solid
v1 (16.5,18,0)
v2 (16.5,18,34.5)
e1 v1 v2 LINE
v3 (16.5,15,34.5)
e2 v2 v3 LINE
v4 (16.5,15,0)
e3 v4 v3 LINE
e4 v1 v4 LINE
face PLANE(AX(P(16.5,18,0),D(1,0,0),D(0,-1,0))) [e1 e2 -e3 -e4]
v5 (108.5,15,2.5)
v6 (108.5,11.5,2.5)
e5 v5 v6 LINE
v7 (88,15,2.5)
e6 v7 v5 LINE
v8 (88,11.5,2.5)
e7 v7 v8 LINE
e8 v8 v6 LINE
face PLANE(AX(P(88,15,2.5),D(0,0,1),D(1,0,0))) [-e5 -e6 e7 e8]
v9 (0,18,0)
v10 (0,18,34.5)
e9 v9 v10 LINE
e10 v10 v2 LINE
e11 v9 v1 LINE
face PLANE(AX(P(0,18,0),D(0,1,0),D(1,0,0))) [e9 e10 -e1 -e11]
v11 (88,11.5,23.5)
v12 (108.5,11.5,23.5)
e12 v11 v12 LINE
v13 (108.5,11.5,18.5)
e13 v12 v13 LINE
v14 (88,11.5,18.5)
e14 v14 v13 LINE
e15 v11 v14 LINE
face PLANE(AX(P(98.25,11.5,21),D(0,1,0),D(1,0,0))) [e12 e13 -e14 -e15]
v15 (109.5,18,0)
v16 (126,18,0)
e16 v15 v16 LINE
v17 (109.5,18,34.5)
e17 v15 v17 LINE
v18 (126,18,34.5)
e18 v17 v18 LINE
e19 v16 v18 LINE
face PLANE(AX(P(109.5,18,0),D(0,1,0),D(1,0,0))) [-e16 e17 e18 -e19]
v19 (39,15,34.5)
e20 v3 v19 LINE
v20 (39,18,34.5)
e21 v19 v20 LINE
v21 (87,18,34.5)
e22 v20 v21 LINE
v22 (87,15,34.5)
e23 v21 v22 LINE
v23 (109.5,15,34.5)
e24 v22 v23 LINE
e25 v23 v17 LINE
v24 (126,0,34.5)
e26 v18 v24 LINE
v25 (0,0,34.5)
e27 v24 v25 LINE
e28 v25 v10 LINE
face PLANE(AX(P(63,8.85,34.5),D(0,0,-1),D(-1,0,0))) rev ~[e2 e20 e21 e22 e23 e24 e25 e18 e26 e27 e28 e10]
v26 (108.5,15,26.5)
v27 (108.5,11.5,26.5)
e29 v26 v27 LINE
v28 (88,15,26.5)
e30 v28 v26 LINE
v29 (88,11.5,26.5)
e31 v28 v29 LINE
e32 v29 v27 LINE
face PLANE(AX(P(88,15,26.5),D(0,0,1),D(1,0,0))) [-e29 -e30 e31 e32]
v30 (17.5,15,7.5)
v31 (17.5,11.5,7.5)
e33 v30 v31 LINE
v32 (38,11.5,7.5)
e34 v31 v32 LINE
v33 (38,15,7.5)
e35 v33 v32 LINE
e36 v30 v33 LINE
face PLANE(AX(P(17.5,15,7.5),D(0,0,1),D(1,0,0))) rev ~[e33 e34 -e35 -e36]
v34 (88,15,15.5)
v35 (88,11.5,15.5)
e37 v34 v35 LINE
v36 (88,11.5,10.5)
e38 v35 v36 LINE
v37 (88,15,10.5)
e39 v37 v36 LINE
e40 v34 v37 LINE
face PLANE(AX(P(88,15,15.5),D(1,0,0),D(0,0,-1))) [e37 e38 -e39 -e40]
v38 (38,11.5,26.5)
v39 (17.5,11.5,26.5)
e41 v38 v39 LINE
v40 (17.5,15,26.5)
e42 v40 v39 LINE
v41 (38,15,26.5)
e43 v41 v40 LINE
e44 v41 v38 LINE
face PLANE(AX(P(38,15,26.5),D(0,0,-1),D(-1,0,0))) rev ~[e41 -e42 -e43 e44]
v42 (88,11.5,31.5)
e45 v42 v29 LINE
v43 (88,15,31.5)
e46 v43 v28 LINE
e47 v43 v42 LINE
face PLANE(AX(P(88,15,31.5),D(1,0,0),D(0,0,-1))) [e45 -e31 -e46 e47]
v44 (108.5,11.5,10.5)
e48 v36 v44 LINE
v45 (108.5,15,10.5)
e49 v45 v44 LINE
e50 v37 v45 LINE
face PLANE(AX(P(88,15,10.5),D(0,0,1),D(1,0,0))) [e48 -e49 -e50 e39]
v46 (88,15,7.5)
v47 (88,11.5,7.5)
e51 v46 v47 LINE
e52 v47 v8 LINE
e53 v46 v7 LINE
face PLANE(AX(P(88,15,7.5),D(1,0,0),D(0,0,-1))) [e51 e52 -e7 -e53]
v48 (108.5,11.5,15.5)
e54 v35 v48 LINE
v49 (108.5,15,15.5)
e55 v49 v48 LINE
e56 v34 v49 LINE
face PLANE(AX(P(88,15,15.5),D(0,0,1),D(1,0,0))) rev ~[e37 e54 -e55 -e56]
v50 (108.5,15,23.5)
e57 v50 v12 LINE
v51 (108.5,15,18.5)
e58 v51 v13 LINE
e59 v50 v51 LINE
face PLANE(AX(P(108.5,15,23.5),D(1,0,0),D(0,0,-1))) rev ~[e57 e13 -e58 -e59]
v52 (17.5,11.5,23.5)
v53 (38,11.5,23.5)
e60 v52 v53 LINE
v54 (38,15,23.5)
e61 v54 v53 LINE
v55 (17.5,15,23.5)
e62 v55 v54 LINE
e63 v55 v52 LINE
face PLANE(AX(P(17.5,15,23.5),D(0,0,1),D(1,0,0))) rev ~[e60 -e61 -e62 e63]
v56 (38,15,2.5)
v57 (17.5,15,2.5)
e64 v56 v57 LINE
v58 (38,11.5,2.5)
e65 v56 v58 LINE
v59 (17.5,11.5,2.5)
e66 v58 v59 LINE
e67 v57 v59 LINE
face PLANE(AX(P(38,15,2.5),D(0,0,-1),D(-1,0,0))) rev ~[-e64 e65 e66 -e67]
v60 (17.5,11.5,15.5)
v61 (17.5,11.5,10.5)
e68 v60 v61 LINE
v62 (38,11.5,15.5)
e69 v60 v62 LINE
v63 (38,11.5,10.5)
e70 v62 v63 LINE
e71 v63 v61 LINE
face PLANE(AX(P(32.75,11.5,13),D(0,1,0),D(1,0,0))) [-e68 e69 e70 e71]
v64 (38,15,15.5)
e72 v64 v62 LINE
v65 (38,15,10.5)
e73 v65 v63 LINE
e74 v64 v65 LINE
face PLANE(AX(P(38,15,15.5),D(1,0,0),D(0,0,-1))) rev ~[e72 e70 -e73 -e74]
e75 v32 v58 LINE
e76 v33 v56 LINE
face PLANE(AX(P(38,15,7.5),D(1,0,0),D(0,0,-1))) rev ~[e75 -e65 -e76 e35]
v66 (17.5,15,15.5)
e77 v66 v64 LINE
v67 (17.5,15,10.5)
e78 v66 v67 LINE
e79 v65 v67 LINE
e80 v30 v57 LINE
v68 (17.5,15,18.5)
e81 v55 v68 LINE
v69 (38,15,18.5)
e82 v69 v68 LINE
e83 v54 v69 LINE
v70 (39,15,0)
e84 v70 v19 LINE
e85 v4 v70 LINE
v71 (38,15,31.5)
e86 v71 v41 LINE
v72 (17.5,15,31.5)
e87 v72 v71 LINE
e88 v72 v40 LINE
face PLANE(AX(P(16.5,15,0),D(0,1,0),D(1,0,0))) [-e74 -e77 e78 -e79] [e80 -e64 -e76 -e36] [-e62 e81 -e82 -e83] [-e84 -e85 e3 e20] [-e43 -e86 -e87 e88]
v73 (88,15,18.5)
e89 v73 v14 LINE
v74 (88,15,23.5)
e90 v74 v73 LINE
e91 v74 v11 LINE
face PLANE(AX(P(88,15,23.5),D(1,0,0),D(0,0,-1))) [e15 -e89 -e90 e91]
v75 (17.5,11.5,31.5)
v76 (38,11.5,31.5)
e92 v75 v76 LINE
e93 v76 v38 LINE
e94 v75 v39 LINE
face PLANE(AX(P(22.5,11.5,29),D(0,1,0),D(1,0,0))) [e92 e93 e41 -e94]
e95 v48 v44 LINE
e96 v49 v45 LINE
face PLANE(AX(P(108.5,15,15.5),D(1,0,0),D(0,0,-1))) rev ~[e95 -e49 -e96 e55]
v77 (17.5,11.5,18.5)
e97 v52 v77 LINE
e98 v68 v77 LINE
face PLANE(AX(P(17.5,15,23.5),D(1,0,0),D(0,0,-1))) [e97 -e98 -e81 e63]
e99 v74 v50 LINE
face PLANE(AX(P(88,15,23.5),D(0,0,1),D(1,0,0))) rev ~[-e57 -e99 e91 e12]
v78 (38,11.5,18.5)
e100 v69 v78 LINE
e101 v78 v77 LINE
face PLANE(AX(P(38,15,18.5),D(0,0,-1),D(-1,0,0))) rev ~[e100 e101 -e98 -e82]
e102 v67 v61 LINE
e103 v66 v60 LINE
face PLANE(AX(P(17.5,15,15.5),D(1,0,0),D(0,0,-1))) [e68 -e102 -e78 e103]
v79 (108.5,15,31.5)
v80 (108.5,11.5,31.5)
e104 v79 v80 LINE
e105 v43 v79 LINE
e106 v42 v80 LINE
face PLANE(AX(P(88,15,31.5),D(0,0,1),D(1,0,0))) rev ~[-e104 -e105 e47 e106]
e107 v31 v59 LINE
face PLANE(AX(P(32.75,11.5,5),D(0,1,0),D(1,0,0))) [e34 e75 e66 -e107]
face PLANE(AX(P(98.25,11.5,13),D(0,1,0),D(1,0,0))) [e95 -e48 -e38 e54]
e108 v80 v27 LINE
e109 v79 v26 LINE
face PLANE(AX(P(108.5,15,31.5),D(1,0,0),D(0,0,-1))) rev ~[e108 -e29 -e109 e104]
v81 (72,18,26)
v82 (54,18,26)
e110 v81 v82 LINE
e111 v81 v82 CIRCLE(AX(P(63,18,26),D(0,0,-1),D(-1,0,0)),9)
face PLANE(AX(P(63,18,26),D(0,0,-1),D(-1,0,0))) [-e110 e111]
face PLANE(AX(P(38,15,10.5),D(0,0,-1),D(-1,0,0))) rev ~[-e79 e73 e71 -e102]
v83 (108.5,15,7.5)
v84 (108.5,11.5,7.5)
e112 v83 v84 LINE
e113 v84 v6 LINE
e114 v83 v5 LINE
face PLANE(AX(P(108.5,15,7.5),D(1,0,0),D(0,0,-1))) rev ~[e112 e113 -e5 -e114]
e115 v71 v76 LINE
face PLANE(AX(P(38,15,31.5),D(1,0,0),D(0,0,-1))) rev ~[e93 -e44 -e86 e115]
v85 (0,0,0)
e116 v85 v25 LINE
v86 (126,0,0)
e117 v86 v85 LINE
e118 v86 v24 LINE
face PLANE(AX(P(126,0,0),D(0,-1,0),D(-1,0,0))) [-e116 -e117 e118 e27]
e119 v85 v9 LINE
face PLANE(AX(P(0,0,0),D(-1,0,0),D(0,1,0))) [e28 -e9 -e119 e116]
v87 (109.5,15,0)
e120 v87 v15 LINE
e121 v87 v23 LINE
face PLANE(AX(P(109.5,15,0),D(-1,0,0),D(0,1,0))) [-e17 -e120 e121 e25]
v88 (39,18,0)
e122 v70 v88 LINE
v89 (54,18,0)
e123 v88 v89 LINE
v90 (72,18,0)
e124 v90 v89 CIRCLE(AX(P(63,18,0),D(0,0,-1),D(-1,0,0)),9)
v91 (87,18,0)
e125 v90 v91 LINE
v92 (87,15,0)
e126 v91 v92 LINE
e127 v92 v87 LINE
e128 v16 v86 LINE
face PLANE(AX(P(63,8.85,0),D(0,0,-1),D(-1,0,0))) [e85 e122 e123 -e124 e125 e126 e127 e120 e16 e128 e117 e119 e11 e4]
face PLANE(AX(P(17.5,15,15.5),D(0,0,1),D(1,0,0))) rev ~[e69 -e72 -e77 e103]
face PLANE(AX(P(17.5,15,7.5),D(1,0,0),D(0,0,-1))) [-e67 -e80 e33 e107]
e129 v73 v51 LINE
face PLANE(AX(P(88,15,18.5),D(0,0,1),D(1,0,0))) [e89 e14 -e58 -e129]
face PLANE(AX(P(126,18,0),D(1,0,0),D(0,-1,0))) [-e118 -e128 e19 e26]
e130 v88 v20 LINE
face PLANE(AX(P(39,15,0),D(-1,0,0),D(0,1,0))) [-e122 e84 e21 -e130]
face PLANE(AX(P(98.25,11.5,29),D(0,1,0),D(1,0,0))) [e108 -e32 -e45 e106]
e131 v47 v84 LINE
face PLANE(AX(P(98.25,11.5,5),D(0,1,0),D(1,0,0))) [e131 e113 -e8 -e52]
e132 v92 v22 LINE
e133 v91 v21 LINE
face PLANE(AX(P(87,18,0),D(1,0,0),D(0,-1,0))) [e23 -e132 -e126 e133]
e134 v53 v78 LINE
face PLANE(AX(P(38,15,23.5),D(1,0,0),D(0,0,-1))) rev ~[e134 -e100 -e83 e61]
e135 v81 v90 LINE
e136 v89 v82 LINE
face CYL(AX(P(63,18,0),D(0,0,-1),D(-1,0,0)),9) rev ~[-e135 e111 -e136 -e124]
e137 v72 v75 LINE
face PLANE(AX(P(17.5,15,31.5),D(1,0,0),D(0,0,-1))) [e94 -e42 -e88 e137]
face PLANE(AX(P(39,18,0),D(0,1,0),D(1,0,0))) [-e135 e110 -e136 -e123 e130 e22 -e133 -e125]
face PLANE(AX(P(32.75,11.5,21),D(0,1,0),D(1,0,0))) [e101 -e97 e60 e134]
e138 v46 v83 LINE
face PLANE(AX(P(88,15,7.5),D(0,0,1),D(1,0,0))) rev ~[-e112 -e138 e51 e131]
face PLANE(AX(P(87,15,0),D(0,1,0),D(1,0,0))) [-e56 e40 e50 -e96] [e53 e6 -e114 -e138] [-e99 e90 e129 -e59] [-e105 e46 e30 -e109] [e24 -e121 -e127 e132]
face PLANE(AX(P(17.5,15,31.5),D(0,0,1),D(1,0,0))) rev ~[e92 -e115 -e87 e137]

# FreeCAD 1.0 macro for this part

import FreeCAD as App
import Part
import Sketcher

V = App.Vector


def add_polygon(sketch, points):
    """Adds a closed chain of lines whose ends are joined by coincident constraints."""
    first, n = sketch.GeometryCount, len(points)
    for a, b in zip(points, points[1:] + points[:1]):
        sketch.addGeometry(Part.LineSegment(App.Vector(*a, 0), App.Vector(*b, 0)), False)
    for i in range(n):
        sketch.addConstraint(Sketcher.Constraint("Coincident", first + i, 2, first + (i + 1) % n, 1))

doc = App.newDocument("Part")
body = doc.addObject("PartDesign::Body", "Body")

sketch1 = doc.addObject("Sketcher::SketchObject", "Sketch")
body.addObject(sketch1)
sketch1.AttachmentSupport = (doc.XY_Plane, [""])
sketch1.MapMode = "FlatFace"
add_polygon(sketch1, [(0, 18), (0, 0), (126, 0), (126, 18), (109.5, 18), (109.5, 15), (87, 15), (87, 18), (39, 18), (39, 15), (16.5, 15), (16.5, 18)])
sketch1.addConstraint(Sketcher.Constraint("Vertical", 0))
sketch1.addConstraint(Sketcher.Constraint("Horizontal", 1))
sketch1.addConstraint(Sketcher.Constraint("Vertical", 2))
sketch1.addConstraint(Sketcher.Constraint("Horizontal", 3))
sketch1.addConstraint(Sketcher.Constraint("Vertical", 4))
sketch1.addConstraint(Sketcher.Constraint("Horizontal", 5))
sketch1.addConstraint(Sketcher.Constraint("Vertical", 6))
sketch1.addConstraint(Sketcher.Constraint("Horizontal", 7))
sketch1.addConstraint(Sketcher.Constraint("Vertical", 8))
sketch1.addConstraint(Sketcher.Constraint("Horizontal", 9))
sketch1.addConstraint(Sketcher.Constraint("Vertical", 10))
sketch1.addConstraint(Sketcher.Constraint("Horizontal", 11))
sketch1.addConstraint(Sketcher.Constraint("Coincident", 0, 2, -1, 1))
sketch1.addConstraint(Sketcher.Constraint("Horizontal", 3, 2, 6, 2))
sketch1.addConstraint(Sketcher.Constraint("Horizontal", 5, 2, 8, 2))
sketch1.addConstraint(Sketcher.Constraint("Horizontal", 7, 2, 10, 2))
sketch1.addConstraint(Sketcher.Constraint("Equal", 5, 9))
sketch1.addConstraint(Sketcher.Constraint("Equal", 3, 11))
sketch1.addConstraint(Sketcher.Constraint("DistanceX", 1, 1, 1, 2, 126.0))
sketch1.addConstraint(Sketcher.Constraint("DistanceX", 7, 2, 7, 1, 48.0))
sketch1.addConstraint(Sketcher.Constraint("DistanceY", 0, 2, 0, 1, 18.0))
sketch1.addConstraint(Sketcher.Constraint("DistanceY", 4, 2, 4, 1, 3.0))
sketch1.addConstraint(Sketcher.Constraint("DistanceX", 3, 2, 3, 1, 16.5))
pad1 = doc.addObject("PartDesign::Pad", "Pad")
body.addObject(pad1)
pad1.Profile = sketch1
pad1.Length = 34.5

sketch2 = doc.addObject("Sketcher::SketchObject", "Sketch001")
body.addObject(sketch2)
sketch2.AttachmentSupport = (doc.XY_Plane, [""])
sketch2.MapMode = "FlatFace"
sketch2.addGeometry(Part.Circle(V(63, 18, 0), V(0, 0, 1), 9), False)
sketch2.addConstraint(Sketcher.Constraint("Diameter", 0, 18.0))
sketch2.addConstraint(Sketcher.Constraint("DistanceX", -1, 1, 0, 3, 63.0))
sketch2.addConstraint(Sketcher.Constraint("DistanceY", -1, 1, 0, 3, 18.0))
pocket1 = doc.addObject("PartDesign::Pocket", "Pocket")
body.addObject(pocket1)
pocket1.Profile = sketch2
pocket1.Length = 26
pocket1.Reversed = True

sketch3 = doc.addObject("Sketcher::SketchObject", "Sketch002")
body.addObject(sketch3)
sketch3.AttachmentSupport = (doc.XZ_Plane, [""])
sketch3.MapMode = "FlatFace"
sketch3.AttachmentOffset = App.Placement(V(0, 0, -15), App.Rotation())
add_polygon(sketch3, [(18, 26), (18, 32), (38, 32), (38, 26)])
add_polygon(sketch3, [(38, 24), (38, 18), (18, 18), (18, 24)])
add_polygon(sketch3, [(38, 16), (38, 10), (18, 10), (18, 16)])
add_polygon(sketch3, [(38, 8), (38, 2), (18, 2), (18, 8)])
add_polygon(sketch3, [(88, 26), (88, 32), (108, 32), (108, 26)])
add_polygon(sketch3, [(88, 18), (88, 24), (108, 24), (108, 18)])
add_polygon(sketch3, [(88, 10), (88, 16), (108, 16), (108, 10)])
add_polygon(sketch3, [(88, 2), (88, 8), (108, 8), (108, 2)])
sketch3.addConstraint(Sketcher.Constraint("Vertical", 0))
sketch3.addConstraint(Sketcher.Constraint("Horizontal", 1))
sketch3.addConstraint(Sketcher.Constraint("Vertical", 2))
sketch3.addConstraint(Sketcher.Constraint("Horizontal", 3))
sketch3.addConstraint(Sketcher.Constraint("Vertical", 4))
sketch3.addConstraint(Sketcher.Constraint("Horizontal", 5))
sketch3.addConstraint(Sketcher.Constraint("Vertical", 6))
sketch3.addConstraint(Sketcher.Constraint("Horizontal", 7))
sketch3.addConstraint(Sketcher.Constraint("Vertical", 8))
sketch3.addConstraint(Sketcher.Constraint("Horizontal", 9))
sketch3.addConstraint(Sketcher.Constraint("Vertical", 10))
sketch3.addConstraint(Sketcher.Constraint("Horizontal", 11))
sketch3.addConstraint(Sketcher.Constraint("Vertical", 12))
sketch3.addConstraint(Sketcher.Constraint("Horizontal", 13))
sketch3.addConstraint(Sketcher.Constraint("Vertical", 14))
sketch3.addConstraint(Sketcher.Constraint("Horizontal", 15))
sketch3.addConstraint(Sketcher.Constraint("Vertical", 16))
sketch3.addConstraint(Sketcher.Constraint("Horizontal", 17))
sketch3.addConstraint(Sketcher.Constraint("Vertical", 18))
sketch3.addConstraint(Sketcher.Constraint("Horizontal", 19))
sketch3.addConstraint(Sketcher.Constraint("Vertical", 20))
sketch3.addConstraint(Sketcher.Constraint("Horizontal", 21))
sketch3.addConstraint(Sketcher.Constraint("Vertical", 22))
sketch3.addConstraint(Sketcher.Constraint("Horizontal", 23))
sketch3.addConstraint(Sketcher.Constraint("Vertical", 24))
sketch3.addConstraint(Sketcher.Constraint("Horizontal", 25))
sketch3.addConstraint(Sketcher.Constraint("Vertical", 26))
sketch3.addConstraint(Sketcher.Constraint("Horizontal", 27))
sketch3.addConstraint(Sketcher.Constraint("Vertical", 28))
sketch3.addConstraint(Sketcher.Constraint("Horizontal", 29))
sketch3.addConstraint(Sketcher.Constraint("Vertical", 30))
sketch3.addConstraint(Sketcher.Constraint("Horizontal", 31))
sketch3.addConstraint(Sketcher.Constraint("Horizontal", 1, 2, 16, 2))
sketch3.addConstraint(Sketcher.Constraint("Horizontal", 3, 2, 18, 2))
sketch3.addConstraint(Sketcher.Constraint("Horizontal", 7, 2, 20, 2))
sketch3.addConstraint(Sketcher.Constraint("Horizontal", 5, 2, 22, 2))
sketch3.addConstraint(Sketcher.Constraint("Horizontal", 11, 2, 24, 2))
sketch3.addConstraint(Sketcher.Constraint("Horizontal", 9, 2, 26, 2))
sketch3.addConstraint(Sketcher.Constraint("Horizontal", 15, 2, 28, 2))
sketch3.addConstraint(Sketcher.Constraint("Horizontal", 13, 2, 30, 2))
sketch3.addConstraint(Sketcher.Constraint("Vertical", 2, 2, 4, 2))
sketch3.addConstraint(Sketcher.Constraint("Vertical", 3, 2, 5, 2))
sketch3.addConstraint(Sketcher.Constraint("Vertical", 7, 2, 8, 2))
sketch3.addConstraint(Sketcher.Constraint("Vertical", 6, 2, 9, 2))
sketch3.addConstraint(Sketcher.Constraint("Vertical", 11, 2, 12, 2))
sketch3.addConstraint(Sketcher.Constraint("Vertical", 10, 2, 13, 2))
sketch3.addConstraint(Sketcher.Constraint("Vertical", 19, 2, 20, 2))
sketch3.addConstraint(Sketcher.Constraint("Vertical", 18, 2, 21, 2))
sketch3.addConstraint(Sketcher.Constraint("Vertical", 23, 2, 24, 2))
sketch3.addConstraint(Sketcher.Constraint("Vertical", 22, 2, 25, 2))
sketch3.addConstraint(Sketcher.Constraint("Vertical", 27, 2, 28, 2))
sketch3.addConstraint(Sketcher.Constraint("Vertical", 26, 2, 29, 2))
sketch3.addConstraint(Sketcher.Constraint("Equal", 15, 17))
sketch3.addConstraint(Sketcher.Constraint("Equal", 2, 4))
sketch3.addConstraint(Sketcher.Constraint("Equal", 6, 8))
sketch3.addConstraint(Sketcher.Constraint("Equal", 10, 12))
sketch3.addConstraint(Sketcher.Constraint("DistanceY", 0, 1, 0, 2, 5.0))
sketch3.addConstraint(Sketcher.Constraint("DistanceX", 1, 1, 1, 2, 20.5))
sketch3.addConstraint(Sketcher.Constraint("DistanceX", -1, 1, 1, 2, 38.0))
sketch3.addConstraint(Sketcher.Constraint("DistanceX", -1, 1, 16, 2, 88.0))
sketch3.addConstraint(Sketcher.Constraint("DistanceY", 4, 2, 2, 2, 8.0))
sketch3.addConstraint(Sketcher.Constraint("DistanceY", 8, 2, 4, 2, 8.0))
sketch3.addConstraint(Sketcher.Constraint("DistanceY", 12, 2, 8, 2, 8.0))
sketch3.addConstraint(Sketcher.Constraint("DistanceY", -1, 1, 0, 2, 31.5))
pocket2 = doc.addObject("PartDesign::Pocket", "Pocket001")
body.addObject(pocket2)
pocket2.Profile = sketch3
pocket2.Length = 3.5
pocket2.Reversed = True

doc.recompute()
